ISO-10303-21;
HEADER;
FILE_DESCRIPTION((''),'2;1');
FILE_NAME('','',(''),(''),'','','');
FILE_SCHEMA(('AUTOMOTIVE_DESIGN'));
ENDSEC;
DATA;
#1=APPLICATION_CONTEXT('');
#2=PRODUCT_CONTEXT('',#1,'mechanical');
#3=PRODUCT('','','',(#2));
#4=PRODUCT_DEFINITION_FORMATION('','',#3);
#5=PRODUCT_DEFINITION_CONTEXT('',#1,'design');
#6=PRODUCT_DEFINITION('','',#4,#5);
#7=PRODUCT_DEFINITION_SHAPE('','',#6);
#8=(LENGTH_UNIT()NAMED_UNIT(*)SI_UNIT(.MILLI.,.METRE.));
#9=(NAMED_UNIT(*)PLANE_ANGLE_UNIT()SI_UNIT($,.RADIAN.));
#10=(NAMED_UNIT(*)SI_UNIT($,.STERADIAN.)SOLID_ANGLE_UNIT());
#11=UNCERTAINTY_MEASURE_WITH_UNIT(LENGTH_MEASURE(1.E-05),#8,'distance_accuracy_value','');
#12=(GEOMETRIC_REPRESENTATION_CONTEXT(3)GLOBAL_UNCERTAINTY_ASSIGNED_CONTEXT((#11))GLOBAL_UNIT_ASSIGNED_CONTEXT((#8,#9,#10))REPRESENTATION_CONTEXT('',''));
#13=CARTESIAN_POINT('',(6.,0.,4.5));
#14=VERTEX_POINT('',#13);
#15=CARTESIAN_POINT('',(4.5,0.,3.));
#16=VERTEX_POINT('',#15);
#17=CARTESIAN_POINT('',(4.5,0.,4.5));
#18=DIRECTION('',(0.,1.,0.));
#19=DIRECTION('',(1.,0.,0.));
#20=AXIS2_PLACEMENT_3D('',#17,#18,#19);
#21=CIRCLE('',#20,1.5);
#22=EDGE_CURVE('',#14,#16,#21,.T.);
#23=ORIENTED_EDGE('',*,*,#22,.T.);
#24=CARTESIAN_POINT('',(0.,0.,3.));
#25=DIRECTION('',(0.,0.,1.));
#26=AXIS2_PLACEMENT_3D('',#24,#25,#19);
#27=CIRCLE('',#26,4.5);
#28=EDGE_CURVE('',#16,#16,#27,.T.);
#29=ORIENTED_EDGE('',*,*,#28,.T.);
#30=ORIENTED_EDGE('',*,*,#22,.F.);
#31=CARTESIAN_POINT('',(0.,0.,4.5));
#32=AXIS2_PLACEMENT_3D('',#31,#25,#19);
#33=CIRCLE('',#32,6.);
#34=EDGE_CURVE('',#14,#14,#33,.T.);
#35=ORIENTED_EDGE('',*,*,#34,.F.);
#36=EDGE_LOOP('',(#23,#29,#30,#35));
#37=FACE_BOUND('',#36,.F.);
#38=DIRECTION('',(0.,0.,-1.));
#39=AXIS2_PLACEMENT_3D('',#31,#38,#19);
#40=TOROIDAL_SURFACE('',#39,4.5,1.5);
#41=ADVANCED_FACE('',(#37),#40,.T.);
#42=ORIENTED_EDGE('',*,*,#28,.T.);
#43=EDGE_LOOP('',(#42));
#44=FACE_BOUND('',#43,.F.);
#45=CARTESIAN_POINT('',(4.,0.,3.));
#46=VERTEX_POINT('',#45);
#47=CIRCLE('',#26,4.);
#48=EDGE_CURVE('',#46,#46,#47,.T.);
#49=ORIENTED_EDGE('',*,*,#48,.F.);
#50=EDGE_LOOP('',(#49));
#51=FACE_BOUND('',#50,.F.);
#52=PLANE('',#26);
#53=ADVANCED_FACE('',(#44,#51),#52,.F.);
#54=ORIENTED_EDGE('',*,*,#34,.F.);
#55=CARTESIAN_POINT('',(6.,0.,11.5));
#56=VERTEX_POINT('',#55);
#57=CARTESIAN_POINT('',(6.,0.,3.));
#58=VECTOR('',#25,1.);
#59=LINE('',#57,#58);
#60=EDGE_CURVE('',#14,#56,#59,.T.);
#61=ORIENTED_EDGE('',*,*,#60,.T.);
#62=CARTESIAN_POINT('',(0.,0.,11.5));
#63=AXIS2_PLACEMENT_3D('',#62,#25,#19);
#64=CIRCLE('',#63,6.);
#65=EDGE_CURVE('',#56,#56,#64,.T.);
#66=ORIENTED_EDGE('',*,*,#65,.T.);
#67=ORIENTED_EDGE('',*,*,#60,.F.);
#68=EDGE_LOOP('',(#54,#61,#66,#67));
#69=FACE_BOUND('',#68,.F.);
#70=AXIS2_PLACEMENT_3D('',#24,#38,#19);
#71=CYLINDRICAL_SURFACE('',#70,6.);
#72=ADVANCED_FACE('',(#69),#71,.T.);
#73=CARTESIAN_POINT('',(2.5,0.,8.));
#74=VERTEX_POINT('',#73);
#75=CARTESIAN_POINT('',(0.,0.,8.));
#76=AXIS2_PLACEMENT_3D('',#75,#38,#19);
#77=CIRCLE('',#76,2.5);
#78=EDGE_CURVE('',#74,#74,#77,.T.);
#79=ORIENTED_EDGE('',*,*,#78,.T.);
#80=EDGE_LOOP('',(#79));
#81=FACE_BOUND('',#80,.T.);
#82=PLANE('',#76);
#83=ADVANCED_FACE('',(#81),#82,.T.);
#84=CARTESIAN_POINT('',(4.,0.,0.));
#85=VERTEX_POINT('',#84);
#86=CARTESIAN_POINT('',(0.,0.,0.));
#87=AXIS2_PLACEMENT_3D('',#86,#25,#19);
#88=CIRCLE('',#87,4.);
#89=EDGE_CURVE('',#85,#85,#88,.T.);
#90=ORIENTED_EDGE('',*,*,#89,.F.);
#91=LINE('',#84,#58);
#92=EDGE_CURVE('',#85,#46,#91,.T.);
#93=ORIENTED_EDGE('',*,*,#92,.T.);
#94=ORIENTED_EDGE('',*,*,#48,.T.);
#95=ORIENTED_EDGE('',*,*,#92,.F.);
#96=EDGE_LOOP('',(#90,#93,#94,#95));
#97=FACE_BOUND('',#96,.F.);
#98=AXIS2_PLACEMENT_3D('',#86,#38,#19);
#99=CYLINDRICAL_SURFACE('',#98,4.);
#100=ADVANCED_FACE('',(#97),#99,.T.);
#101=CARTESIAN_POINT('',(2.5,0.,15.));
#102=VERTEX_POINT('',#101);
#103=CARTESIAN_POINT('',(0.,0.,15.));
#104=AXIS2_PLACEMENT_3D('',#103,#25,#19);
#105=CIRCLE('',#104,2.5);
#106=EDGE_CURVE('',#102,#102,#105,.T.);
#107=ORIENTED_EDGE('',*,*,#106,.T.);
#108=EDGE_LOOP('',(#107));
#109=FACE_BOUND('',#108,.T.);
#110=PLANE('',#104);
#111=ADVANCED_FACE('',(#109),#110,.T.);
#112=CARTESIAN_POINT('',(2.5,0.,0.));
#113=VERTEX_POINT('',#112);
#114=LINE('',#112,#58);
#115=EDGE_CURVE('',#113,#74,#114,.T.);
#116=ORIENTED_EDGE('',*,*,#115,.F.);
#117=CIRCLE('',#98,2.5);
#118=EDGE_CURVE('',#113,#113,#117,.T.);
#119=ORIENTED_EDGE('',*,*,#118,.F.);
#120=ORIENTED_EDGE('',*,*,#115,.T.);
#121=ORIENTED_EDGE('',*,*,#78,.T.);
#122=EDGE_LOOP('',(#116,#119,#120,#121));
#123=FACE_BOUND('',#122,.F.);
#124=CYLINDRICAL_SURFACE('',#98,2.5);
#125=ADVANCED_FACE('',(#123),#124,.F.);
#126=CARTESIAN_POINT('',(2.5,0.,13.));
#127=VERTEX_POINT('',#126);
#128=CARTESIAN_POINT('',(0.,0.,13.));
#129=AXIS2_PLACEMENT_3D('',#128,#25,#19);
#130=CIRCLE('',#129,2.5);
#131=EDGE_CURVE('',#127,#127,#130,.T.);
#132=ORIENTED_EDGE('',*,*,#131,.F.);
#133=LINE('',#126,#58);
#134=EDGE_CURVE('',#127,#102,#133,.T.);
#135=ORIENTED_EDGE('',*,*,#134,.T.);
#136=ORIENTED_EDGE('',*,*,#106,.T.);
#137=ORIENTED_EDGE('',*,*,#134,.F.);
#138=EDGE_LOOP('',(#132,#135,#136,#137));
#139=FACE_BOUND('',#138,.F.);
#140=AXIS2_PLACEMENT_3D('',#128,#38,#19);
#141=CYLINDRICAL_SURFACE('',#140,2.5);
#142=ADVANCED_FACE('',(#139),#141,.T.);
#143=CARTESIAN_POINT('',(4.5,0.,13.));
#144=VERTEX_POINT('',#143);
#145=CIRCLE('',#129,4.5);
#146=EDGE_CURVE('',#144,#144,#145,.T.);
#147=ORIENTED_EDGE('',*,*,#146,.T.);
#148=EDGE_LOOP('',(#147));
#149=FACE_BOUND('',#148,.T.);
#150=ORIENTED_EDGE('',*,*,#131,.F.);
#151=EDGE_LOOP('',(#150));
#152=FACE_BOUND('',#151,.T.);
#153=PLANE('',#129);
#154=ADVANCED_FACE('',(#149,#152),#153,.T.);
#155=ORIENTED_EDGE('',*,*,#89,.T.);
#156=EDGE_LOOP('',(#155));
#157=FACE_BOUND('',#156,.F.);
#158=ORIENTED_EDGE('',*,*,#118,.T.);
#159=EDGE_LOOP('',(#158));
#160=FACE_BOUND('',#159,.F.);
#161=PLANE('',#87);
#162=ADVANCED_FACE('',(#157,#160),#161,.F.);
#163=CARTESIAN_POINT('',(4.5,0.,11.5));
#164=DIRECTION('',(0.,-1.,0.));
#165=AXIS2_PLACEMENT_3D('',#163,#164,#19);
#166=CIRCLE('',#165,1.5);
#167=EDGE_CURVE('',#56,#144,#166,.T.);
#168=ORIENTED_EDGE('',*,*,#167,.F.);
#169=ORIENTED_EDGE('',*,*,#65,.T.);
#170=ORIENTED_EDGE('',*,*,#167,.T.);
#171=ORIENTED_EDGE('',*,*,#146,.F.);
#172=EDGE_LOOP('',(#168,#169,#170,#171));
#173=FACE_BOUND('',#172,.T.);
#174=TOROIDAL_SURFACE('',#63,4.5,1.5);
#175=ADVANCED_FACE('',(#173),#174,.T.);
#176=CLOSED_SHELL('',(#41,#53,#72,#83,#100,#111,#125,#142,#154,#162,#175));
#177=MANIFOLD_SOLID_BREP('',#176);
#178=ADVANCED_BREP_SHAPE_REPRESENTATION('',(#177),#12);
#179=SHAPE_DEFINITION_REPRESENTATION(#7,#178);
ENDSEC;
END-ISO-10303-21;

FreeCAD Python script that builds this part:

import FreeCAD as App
import Part
import Sketcher

V = App.Vector
Q = App.Units.Quantity


def edges_at(feature, points):
    """Names of the edges that pass closest to the given points."""
    edges = feature.Shape.Edges
    near = lambda p: min(range(len(edges)), key=lambda i: edges[i].distToShape(Part.Vertex(*p))[0])
    return sorted({f"Edge{near(p) + 1}" for p in points})

doc = App.newDocument("Part")
body = doc.addObject("PartDesign::Body", "Body")

# Sketch on XY plane
sketch1 = body.newObject("Sketcher::SketchObject", "Sketch")
sketch1.AttachmentSupport = (doc.getObject("XY_Plane"), [""])
sketch1.MapMode = "FlatFace"
sketch1.addGeometry(Part.Circle(V(0, 0, 0), V(0, 0, 1), 4), False)
sketch1.addConstraint(Sketcher.Constraint("Coincident", 0, 3, -1, 1))
sketch1.addConstraint(Sketcher.Constraint("Diameter", 0, Q("8 mm")))
pad1 = body.newObject("PartDesign::Pad", "Pad")
pad1.Profile = sketch1
pad1.Length = 3

# Sketch on XY plane
sketch2 = body.newObject("Sketcher::SketchObject", "Sketch001")
sketch2.AttachmentSupport = (doc.getObject("XY_Plane"), [""])
sketch2.MapMode = "FlatFace"
sketch2.AttachmentOffset = App.Placement(V(0, 0, 3), App.Rotation())
sketch2.addGeometry(Part.Circle(V(0, 0, 0), V(0, 0, 1), 6), False)
sketch2.addConstraint(Sketcher.Constraint("Coincident", 0, 3, -1, 1))
sketch2.addConstraint(Sketcher.Constraint("Diameter", 0, Q("12 mm")))
pad2 = body.newObject("PartDesign::Pad", "Pad001")
pad2.Profile = sketch2
pad2.Length = 10

# Sketch on XY plane
sketch3 = body.newObject("Sketcher::SketchObject", "Sketch002")
sketch3.AttachmentSupport = (doc.getObject("XY_Plane"), [""])
sketch3.MapMode = "FlatFace"
sketch3.AttachmentOffset = App.Placement(V(0, 0, 13), App.Rotation())
sketch3.addGeometry(Part.Circle(V(0, 0, 0), V(0, 0, 1), 2.5), False)
sketch3.addConstraint(Sketcher.Constraint("Coincident", 0, 3, -1, 1))
sketch3.addConstraint(Sketcher.Constraint("Diameter", 0, Q("5 mm")))
pad3 = body.newObject("PartDesign::Pad", "Pad002")
pad3.Profile = sketch3
pad3.Length = 2
doc.recompute()

fillet = body.newObject("PartDesign::Fillet", "Fillet")
fillet.Base = (pad3, edges_at(pad3, [(-6, 0, 13), (-6, 0, 3)]))
fillet.Radius = 1.5

# Sketch on XY plane
sketch4 = body.newObject("Sketcher::SketchObject", "Sketch003")
sketch4.AttachmentSupport = (doc.getObject("XY_Plane"), [""])
sketch4.MapMode = "FlatFace"
sketch4.addGeometry(Part.Circle(V(0, 0, 0), V(0, 0, 1), 2.5), False)
sketch4.addConstraint(Sketcher.Constraint("Coincident", 0, 3, -1, 1))
sketch4.addConstraint(Sketcher.Constraint("Diameter", 0, Q("5 mm")))
pocket1 = body.newObject("PartDesign::Pocket", "Pocket")
pocket1.Profile = sketch4
pocket1.Length = 8
pocket1.Reversed = True

doc.recompute()
